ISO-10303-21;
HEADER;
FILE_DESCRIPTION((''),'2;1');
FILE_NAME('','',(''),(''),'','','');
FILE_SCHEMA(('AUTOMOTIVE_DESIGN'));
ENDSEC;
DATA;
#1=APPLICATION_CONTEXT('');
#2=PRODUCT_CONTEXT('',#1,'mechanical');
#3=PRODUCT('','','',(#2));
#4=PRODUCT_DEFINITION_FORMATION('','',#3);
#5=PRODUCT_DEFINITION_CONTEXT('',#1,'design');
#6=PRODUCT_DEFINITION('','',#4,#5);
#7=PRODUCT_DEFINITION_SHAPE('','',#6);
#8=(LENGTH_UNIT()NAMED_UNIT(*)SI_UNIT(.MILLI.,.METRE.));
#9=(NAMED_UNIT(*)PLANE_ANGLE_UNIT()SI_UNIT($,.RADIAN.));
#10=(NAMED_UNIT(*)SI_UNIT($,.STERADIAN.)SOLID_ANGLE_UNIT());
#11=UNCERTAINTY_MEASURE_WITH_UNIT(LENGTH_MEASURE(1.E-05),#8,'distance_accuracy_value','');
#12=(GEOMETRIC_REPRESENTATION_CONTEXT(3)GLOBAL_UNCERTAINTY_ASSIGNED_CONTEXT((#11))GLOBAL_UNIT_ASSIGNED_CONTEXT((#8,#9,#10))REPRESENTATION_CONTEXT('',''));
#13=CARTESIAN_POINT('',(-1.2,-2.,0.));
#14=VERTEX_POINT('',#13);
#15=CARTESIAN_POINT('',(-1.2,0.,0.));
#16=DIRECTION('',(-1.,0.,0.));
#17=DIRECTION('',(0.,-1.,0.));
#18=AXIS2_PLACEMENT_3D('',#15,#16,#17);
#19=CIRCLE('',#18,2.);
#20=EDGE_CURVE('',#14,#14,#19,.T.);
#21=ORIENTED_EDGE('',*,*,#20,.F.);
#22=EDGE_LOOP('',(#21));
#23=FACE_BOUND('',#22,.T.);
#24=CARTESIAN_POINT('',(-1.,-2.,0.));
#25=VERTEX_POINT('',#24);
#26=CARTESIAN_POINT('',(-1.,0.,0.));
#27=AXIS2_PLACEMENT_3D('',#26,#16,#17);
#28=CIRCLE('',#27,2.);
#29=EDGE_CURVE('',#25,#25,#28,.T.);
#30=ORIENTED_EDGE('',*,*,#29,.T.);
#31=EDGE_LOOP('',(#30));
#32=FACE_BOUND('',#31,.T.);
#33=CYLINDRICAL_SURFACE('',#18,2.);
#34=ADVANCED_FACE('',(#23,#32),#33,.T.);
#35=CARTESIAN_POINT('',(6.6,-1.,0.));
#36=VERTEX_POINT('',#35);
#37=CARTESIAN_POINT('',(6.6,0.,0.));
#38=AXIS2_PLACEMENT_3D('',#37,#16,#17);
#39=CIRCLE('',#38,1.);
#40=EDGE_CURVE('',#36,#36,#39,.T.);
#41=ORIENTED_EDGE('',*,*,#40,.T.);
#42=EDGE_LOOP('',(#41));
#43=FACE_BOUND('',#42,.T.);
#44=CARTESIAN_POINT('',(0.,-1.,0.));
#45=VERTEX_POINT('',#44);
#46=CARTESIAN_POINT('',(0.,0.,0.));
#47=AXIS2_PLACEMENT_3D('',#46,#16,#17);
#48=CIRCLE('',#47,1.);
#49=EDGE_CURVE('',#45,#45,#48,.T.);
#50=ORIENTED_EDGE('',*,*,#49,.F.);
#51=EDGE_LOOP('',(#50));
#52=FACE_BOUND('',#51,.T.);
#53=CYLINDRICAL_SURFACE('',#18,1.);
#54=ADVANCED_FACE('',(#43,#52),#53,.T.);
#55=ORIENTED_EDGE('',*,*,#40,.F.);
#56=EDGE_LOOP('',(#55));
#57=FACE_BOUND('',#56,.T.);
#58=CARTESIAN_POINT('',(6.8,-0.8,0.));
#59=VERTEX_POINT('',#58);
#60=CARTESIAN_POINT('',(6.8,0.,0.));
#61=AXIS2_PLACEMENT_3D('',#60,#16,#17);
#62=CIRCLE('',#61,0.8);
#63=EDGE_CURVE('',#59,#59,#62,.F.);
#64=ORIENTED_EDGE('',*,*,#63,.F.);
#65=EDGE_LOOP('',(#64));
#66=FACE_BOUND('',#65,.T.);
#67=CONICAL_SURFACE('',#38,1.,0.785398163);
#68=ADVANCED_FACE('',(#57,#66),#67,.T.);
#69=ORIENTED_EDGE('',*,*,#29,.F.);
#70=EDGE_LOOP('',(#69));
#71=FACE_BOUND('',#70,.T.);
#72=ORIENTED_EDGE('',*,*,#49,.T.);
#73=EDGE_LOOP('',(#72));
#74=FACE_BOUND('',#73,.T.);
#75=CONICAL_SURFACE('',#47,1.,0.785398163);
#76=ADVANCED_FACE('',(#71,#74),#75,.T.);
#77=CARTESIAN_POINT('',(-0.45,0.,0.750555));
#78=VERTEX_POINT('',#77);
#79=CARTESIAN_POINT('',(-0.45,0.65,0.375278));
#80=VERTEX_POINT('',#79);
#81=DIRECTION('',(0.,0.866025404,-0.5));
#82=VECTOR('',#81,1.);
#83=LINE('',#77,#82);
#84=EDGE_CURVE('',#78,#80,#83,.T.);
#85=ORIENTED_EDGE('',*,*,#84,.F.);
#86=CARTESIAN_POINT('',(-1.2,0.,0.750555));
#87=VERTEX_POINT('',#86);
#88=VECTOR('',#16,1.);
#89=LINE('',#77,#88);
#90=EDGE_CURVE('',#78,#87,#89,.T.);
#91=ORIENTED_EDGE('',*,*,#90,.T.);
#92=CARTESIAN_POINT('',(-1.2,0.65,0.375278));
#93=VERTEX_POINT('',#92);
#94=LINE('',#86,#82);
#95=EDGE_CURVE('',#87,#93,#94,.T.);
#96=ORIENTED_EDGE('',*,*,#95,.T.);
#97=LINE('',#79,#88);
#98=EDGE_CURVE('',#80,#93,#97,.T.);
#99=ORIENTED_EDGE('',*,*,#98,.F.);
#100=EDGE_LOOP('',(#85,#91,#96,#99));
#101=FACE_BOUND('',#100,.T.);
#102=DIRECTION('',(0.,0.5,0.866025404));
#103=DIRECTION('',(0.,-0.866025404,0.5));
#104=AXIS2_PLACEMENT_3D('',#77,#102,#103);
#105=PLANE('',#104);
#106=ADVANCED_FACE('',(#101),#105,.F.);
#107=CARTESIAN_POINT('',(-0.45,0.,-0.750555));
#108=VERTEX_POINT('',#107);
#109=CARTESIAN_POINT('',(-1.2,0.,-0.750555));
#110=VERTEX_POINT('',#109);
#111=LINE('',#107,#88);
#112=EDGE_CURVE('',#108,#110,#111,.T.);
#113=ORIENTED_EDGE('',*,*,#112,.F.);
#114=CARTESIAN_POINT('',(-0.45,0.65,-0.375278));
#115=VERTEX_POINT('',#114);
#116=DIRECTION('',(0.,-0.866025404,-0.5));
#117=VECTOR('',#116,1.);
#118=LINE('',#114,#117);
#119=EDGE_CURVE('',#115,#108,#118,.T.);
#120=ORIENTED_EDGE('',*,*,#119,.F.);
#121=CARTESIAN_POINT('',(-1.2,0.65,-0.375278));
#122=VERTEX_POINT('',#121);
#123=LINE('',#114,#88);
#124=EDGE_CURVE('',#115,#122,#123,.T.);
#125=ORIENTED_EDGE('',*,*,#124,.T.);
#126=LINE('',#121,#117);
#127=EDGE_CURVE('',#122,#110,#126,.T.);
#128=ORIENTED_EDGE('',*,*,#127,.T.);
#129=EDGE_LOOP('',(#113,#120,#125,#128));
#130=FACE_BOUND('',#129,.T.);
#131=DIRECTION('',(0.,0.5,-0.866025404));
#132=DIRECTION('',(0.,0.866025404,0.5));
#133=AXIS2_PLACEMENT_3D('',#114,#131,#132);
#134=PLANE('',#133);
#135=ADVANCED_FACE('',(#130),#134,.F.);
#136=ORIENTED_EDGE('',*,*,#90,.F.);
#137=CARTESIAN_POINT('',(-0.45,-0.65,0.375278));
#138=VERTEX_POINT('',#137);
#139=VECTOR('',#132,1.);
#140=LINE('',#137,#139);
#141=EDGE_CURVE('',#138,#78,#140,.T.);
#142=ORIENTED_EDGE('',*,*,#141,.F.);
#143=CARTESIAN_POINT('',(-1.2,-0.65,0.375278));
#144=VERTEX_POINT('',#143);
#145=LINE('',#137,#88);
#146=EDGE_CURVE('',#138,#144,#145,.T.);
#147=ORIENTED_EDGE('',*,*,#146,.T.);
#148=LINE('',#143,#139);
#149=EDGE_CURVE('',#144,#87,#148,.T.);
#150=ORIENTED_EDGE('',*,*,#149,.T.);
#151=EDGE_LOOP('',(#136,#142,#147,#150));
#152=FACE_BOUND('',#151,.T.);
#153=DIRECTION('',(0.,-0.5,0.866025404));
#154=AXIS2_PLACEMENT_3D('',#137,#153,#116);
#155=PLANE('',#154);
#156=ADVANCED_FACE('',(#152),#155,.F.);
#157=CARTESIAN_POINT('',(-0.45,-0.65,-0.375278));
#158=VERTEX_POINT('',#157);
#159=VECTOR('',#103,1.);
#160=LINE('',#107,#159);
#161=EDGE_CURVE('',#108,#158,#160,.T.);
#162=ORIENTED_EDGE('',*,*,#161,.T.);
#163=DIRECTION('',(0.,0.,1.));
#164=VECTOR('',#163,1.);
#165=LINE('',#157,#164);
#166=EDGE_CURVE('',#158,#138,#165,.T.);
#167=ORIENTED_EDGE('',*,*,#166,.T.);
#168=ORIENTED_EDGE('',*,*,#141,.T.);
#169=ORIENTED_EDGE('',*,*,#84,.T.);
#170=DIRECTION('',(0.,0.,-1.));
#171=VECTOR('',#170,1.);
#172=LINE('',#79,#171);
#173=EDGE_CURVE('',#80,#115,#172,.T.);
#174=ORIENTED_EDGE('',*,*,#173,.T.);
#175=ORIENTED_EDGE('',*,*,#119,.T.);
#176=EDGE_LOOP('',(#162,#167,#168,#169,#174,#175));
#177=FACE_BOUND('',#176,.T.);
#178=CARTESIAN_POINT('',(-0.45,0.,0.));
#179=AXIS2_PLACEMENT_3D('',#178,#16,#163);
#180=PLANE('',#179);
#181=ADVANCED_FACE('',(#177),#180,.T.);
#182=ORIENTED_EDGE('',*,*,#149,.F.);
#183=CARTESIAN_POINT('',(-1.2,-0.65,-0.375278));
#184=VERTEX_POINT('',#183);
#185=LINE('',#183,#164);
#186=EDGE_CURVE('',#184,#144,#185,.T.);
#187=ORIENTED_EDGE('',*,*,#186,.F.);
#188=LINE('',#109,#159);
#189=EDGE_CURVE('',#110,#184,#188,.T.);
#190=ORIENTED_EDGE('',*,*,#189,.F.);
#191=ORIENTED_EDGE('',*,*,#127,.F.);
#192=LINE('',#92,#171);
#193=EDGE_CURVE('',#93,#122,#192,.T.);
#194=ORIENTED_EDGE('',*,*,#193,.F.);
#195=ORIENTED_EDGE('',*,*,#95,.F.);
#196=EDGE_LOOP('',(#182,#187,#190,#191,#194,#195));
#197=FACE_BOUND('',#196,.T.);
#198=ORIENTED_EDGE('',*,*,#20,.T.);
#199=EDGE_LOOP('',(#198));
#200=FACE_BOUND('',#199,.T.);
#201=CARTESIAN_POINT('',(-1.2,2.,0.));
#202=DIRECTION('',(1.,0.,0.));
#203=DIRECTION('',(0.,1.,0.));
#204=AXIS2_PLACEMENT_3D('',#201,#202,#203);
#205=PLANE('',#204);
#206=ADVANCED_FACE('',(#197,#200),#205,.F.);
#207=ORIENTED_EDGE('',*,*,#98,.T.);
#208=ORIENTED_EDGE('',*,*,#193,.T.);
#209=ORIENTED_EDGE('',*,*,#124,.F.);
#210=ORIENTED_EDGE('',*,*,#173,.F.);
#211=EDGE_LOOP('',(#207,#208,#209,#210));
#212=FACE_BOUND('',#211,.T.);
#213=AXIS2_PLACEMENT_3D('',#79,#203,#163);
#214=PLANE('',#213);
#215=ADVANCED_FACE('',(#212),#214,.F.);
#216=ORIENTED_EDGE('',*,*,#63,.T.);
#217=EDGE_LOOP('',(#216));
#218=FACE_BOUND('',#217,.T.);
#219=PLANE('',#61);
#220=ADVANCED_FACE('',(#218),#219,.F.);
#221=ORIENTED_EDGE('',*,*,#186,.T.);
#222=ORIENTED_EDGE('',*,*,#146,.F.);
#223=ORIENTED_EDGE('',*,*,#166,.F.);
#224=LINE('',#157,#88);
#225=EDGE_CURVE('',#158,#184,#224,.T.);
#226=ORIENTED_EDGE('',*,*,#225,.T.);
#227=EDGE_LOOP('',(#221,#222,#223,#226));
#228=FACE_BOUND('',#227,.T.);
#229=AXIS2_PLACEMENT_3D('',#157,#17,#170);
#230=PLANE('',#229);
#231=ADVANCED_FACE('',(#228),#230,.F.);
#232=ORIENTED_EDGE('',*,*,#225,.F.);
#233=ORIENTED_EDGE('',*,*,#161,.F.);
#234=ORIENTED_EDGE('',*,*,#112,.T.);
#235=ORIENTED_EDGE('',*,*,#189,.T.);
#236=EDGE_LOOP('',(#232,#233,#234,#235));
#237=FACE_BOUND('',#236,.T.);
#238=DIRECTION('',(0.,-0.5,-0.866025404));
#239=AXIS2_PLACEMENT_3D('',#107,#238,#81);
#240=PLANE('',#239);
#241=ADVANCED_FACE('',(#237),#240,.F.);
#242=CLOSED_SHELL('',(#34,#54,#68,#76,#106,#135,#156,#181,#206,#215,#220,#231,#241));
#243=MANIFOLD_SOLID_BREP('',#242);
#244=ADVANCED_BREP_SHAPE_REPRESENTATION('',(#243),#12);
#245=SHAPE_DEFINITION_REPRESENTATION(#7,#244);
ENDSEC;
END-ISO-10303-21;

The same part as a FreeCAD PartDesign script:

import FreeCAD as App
import Part
import Sketcher
from FreeCAD import Vector
Q = App.Units.Quantity


def edges_at(feature, points):
    """Names of the edges that pass closest to the given points."""
    edges = feature.Shape.Edges
    near = lambda p: min(range(len(edges)), key=lambda i: edges[i].distToShape(Part.Vertex(*p))[0])
    return sorted({f"Edge{near(p) + 1}" for p in points})


def add_polygon(sketch, points):
    """Adds a closed chain of lines whose ends are joined by coincident constraints."""
    first, n = sketch.GeometryCount, len(points)
    for a, b in zip(points, points[1:] + points[:1]):
        sketch.addGeometry(Part.LineSegment(App.Vector(*a, 0), App.Vector(*b, 0)), False)
    for i in range(n):
        sketch.addConstraint(Sketcher.Constraint("Coincident", first + i, 2, first + (i + 1) % n, 1))

doc = App.newDocument("Part")
body = doc.addObject("PartDesign::Body", "Body")

# Sketch on XY plane
sketch1 = body.newObject("Sketcher::SketchObject", "Sketch")
sketch1.AttachmentSupport = (doc.getObject("XY_Plane"), [""])
sketch1.MapMode = "FlatFace"
add_polygon(sketch1, [(0, 1), (-1, 2), (-1.2, 2), (-1.2, 0), (6.8, 0), (6.8, 1)])  # lines 0-5
sketch1.addConstraint([
    Sketcher.Constraint("Horizontal", 1),
    Sketcher.Constraint("Vertical", 2),
    Sketcher.Constraint("Horizontal", 3),
    Sketcher.Constraint("Vertical", 4),
    Sketcher.Constraint("Horizontal", 5),
    Sketcher.Constraint("PointOnObject", 2, 2, -1),
    Sketcher.Constraint("PointOnObject", 5, 2, -2),
    Sketcher.Constraint("DistanceX", 3, 1, 3, 2, 8.0),
    Sketcher.Constraint("DistanceY", 2, 2, 2, 1, 2.0),
    Sketcher.Constraint("DistanceY", 4, 1, 4, 2, 1.0),
    Sketcher.Constraint("Angle", 0, Q("135 deg")),
    Sketcher.Constraint("DistanceX", 1, 2, 1, 1, 0.2),
])
revolution = body.newObject("PartDesign::Revolution", "Revolution")
revolution.Profile = sketch1
revolution.ReferenceAxis = (sketch1, ["H_Axis"])
revolution.Angle = 360
doc.recompute()

chamfer = body.newObject("PartDesign::Chamfer", "Chamfer")
chamfer.Base = (revolution, edges_at(revolution, [(6.8, -1, 0)]))
chamfer.Size = 0.2

# Sketch on YZ plane
sketch2 = body.newObject("Sketcher::SketchObject", "Sketch001")
sketch2.AttachmentSupport = (doc.getObject("YZ_Plane"), [""])
sketch2.MapMode = "FlatFace"
sketch2.AttachmentOffset = App.Placement(Vector(0, 0, -1.2), App.Rotation())
add_polygon(sketch2, [(0, -0.8), (-0.7, -0.4), (-0.7, 0.4), (0, 0.8), (0.7, 0.4), (0.7, -0.4)])  # lines 0-5
sketch2.addConstraint([
    Sketcher.Constraint("Vertical", 1),
    Sketcher.Constraint("Vertical", 4),
    Sketcher.Constraint("Symmetric", 0, 2, 3, 2, -1, 1),
    Sketcher.Constraint("Symmetric", 2, 2, 5, 2, -1, 1),
    Sketcher.Constraint("PointOnObject", 2, 2, -2),
    Sketcher.Constraint("Parallel", 2, 5),
    Sketcher.Constraint("Horizontal", 1, 2, 3, 2),
    Sketcher.Constraint("Angle", 0, Q("150 deg")),
    Sketcher.Constraint("DistanceX", 1, 2, 3, 2, 1.3),
    Sketcher.Constraint("DistanceY", 1, 1, 1, 2, 0.750555),
])
pocket1 = body.newObject("PartDesign::Pocket", "Pocket")
pocket1.Profile = sketch2
pocket1.Length = 0.75
pocket1.Reversed = True

doc.recompute()
